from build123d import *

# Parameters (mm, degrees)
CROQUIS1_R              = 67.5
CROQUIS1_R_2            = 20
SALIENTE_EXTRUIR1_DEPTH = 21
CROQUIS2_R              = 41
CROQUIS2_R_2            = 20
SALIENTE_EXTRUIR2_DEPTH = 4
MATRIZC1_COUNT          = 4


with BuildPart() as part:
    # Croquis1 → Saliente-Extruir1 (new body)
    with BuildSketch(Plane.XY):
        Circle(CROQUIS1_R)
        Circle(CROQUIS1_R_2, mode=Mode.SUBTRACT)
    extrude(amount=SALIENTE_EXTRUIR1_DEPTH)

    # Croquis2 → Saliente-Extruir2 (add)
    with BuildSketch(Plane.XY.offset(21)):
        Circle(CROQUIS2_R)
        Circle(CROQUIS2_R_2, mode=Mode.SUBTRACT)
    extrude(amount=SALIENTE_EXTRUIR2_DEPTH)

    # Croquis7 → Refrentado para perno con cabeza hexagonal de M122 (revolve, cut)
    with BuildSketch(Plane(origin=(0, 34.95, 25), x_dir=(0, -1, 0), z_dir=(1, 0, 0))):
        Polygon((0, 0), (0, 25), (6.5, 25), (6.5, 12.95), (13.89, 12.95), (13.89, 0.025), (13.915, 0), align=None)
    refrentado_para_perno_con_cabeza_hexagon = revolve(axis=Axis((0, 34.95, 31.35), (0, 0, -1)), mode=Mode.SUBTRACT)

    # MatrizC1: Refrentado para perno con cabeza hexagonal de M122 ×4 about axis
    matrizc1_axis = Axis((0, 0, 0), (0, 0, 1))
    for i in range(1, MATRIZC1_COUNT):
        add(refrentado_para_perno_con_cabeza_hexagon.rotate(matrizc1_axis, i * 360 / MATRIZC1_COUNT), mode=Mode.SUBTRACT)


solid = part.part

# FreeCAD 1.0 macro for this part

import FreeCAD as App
import Part
import Sketcher
from FreeCAD import Vector
Q = App.Units.Quantity


def add_polygon(sketch, points):
    """Adds a closed chain of lines whose ends are joined by coincident constraints."""
    first, n = sketch.GeometryCount, len(points)
    for a, b in zip(points, points[1:] + points[:1]):
        sketch.addGeometry(Part.LineSegment(App.Vector(*a, 0), App.Vector(*b, 0)), False)
    for i in range(n):
        sketch.addConstraint(Sketcher.Constraint("Coincident", first + i, 2, first + (i + 1) % n, 1))

doc = App.newDocument("Part")
body = doc.addObject("PartDesign::Body", "Body")

sketch1 = doc.addObject("Sketcher::SketchObject", "Sketch")
body.addObject(sketch1)
sketch1.AttachmentSupport = (doc.XY_Plane, [""])
sketch1.MapMode = "FlatFace"
sketch1.addGeometry([
    Part.Circle(Vector(0, 0, 0), Vector(0, 0, 1), 67.5),
    Part.Circle(Vector(0, 0, 0), Vector(0, 0, 1), 20),
], False)
sketch1.addConstraint([
    Sketcher.Constraint("Coincident", 0, 3, -1, 1),
    Sketcher.Constraint("Coincident", 1, 3, -1, 1),
    Sketcher.Constraint("Diameter", 0, Q("135 mm")),
    Sketcher.Constraint("Diameter", 1, Q("40 mm")),
])
pad1 = doc.addObject("PartDesign::Pad", "Pad")
body.addObject(pad1)
pad1.Profile = sketch1
pad1.Length = 21

sketch2 = doc.addObject("Sketcher::SketchObject", "Sketch001")
body.addObject(sketch2)
sketch2.AttachmentSupport = (doc.XY_Plane, [""])
sketch2.MapMode = "FlatFace"
sketch2.AttachmentOffset = App.Placement(Vector(0, 0, 21), App.Rotation())
sketch2.addGeometry([
    Part.Circle(Vector(0, 0, 0), Vector(0, 0, 1), 41),
    Part.Circle(Vector(0, 0, 0), Vector(0, 0, 1), 20),
], False)
sketch2.addConstraint([
    Sketcher.Constraint("Coincident", 0, 3, -1, 1),
    Sketcher.Constraint("Coincident", 1, 3, -1, 1),
    Sketcher.Constraint("Diameter", 0, Q("82 mm")),
    Sketcher.Constraint("Diameter", 1, Q("40 mm")),
])
pad2 = doc.addObject("PartDesign::Pad", "Pad001")
body.addObject(pad2)
pad2.Profile = sketch2
pad2.Length = 4

sketch3 = doc.addObject("Sketcher::SketchObject", "Sketch002")
body.addObject(sketch3)
sketch3.AttachmentSupport = (doc.YZ_Plane, [""])
sketch3.MapMode = "FlatFace"
add_polygon(sketch3, [(34.95, 0), (34.95, 25), (21.035, 25), (21.06, 24.975), (21.06, 12.05), (28.45, 12.05), (28.45, 0)])
sketch3.addGeometry(Part.LineSegment(Vector(34.95, 25, 0), Vector(34.95, 0, 0)), True)
sketch3.addConstraint([
    Sketcher.Constraint("Vertical", 0),
    Sketcher.Constraint("Horizontal", 1),
    Sketcher.Constraint("Vertical", 3),
    Sketcher.Constraint("Horizontal", 4),
    Sketcher.Constraint("Vertical", 5),
    Sketcher.Constraint("Horizontal", 6),
    Sketcher.Constraint("Vertical", 7),
    Sketcher.Constraint("Coincident", 7, 1, 0, 2),
    Sketcher.Constraint("PointOnObject", 5, 2, -1),
    Sketcher.Constraint("PointOnObject", 7, 2, -1),
    Sketcher.Constraint("DistanceY", 0, 1, 0, 2, Q("25 mm")),
    Sketcher.Constraint("Angle", 2, Q("-45 deg")),
    Sketcher.Constraint("DistanceX", 6, 1, 6, 2, Q("6.5 mm")),
    Sketcher.Constraint("DistanceX", 4, 1, 4, 2, Q("7.39 mm")),
    Sketcher.Constraint("DistanceY", 5, 2, 5, 1, Q("12.05 mm")),
    Sketcher.Constraint("DistanceX", 1, 2, 1, 1, Q("13.915 mm")),
    Sketcher.Constraint("DistanceX", -1, 1, 0, 2, Q("34.95 mm")),
])
groove = doc.addObject("PartDesign::Groove", "Groove")
body.addObject(groove)
groove.Profile = sketch3
groove.ReferenceAxis = (sketch3, ["Axis0"])
groove.Angle = 360
doc.recompute()

polarpattern = doc.addObject("PartDesign::PolarPattern", "PolarPattern")
body.addObject(polarpattern)
polarpattern.Originals = [groove]
polarpattern.Axis = (doc.Z_Axis, [""])
polarpattern.Angle = 360
polarpattern.Occurrences = 4
body.Tip = polarpattern

doc.recompute()
